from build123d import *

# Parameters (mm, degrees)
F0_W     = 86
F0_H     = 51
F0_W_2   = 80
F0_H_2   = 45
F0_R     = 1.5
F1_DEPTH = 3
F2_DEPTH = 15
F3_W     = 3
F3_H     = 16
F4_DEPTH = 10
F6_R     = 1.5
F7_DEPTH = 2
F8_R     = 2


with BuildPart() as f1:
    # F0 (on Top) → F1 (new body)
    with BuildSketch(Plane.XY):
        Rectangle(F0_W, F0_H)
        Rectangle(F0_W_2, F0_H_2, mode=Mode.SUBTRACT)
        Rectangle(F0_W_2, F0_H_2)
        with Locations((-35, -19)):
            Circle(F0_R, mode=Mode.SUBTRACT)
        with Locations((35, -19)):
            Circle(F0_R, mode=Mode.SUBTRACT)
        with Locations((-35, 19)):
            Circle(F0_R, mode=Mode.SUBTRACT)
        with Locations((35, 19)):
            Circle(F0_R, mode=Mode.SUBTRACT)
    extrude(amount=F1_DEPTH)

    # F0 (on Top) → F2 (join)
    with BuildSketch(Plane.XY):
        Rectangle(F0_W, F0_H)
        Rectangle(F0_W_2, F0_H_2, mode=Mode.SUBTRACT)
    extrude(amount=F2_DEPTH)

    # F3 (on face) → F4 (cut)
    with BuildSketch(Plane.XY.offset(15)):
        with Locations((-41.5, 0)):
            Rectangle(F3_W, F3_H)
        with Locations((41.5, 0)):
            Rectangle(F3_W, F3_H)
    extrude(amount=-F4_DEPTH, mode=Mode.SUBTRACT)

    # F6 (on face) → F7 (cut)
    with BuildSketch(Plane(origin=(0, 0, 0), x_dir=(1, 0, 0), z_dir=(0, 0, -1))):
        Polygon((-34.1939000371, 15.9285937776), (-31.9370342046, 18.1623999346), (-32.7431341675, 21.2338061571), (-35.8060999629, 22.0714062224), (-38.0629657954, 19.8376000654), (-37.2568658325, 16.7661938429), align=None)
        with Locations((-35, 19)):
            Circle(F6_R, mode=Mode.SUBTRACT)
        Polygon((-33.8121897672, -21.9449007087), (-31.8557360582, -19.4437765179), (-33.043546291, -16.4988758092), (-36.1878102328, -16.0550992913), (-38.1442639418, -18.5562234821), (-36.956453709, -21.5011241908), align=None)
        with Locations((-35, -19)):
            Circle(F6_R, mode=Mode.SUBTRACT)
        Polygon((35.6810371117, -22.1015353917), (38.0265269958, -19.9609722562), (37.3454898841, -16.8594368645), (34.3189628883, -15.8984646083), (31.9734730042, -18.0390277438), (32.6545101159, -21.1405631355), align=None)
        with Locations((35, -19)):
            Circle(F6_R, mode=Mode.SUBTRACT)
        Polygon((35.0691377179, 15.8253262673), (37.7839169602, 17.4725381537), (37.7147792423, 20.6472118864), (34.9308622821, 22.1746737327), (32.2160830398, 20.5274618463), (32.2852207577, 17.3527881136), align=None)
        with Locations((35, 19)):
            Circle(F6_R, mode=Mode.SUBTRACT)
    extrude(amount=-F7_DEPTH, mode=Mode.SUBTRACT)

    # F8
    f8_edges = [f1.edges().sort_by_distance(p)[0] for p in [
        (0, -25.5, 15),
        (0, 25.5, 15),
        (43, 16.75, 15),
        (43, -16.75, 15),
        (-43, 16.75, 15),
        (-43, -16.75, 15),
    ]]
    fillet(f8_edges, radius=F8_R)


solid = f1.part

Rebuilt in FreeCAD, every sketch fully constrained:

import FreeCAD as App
import Part
import Sketcher

V = App.Vector


def edges_at(feature, points):
    """Names of the edges that pass closest to the given points."""
    edges = feature.Shape.Edges
    near = lambda p: min(range(len(edges)), key=lambda i: edges[i].distToShape(Part.Vertex(*p))[0])
    return sorted({f"Edge{near(p) + 1}" for p in points})

doc = App.newDocument("Part")
body = doc.addObject("PartDesign::Body", "Body")

# Sketch on XY plane
sketch1 = body.newObject("Sketcher::SketchObject", "Sketch")
sketch1.AttachmentSupport = (doc.getObject("XY_Plane"), [""])
sketch1.MapMode = "FlatFace"
sketch1.addGeometry([
    Part.LineSegment(V(-43, 25.5, 0), V(-43, -25.5, 0)),  # 0
    Part.LineSegment(V(-43, -25.5, 0), V(43, -25.5, 0)),  # 1
    Part.LineSegment(V(43, -25.5, 0), V(43, 25.5, 0)),  # 2
    Part.LineSegment(V(43, 25.5, 0), V(-43, 25.5, 0)),  # 3
    Part.Circle(V(-35, -19, 0), V(0, 0, 1), 1.5),  # 4
    Part.Circle(V(35, -19, 0), V(0, 0, 1), 1.5),  # 5
    Part.Circle(V(-35, 19, 0), V(0, 0, 1), 1.5),  # 6
    Part.Circle(V(35, 19, 0), V(0, 0, 1), 1.5),  # 7
], False)
sketch1.addConstraint([
    Sketcher.Constraint("Coincident", 0, 2, 1, 1),
    Sketcher.Constraint("Coincident", 1, 2, 2, 1),
    Sketcher.Constraint("Coincident", 2, 2, 3, 1),
    Sketcher.Constraint("Coincident", 3, 2, 0, 1),
    Sketcher.Constraint("Vertical", 0),
    Sketcher.Constraint("Horizontal", 1),
    Sketcher.Constraint("Vertical", 2),
    Sketcher.Constraint("Horizontal", 3),
    Sketcher.Constraint("Equal", 4, 5),
    Sketcher.Constraint("Equal", 5, 6),
    Sketcher.Constraint("Equal", 6, 7),
    Sketcher.Constraint("Symmetric", 5, 3, 6, 3, -1, 1),
    Sketcher.Constraint("Symmetric", 4, 3, 7, 3, -1, 1),
    Sketcher.Constraint("Symmetric", 0, 2, 2, 2, -1, 1),
    Sketcher.Constraint("Symmetric", 4, 3, 5, 3, -2),
    Sketcher.Constraint("Diameter", 4, 3.0),
    Sketcher.Constraint("DistanceX", 1, 1, 1, 2, 86.0),
    Sketcher.Constraint("DistanceY", 0, 2, 0, 1, 51.0),
    Sketcher.Constraint("DistanceX", 4, 3, -1, 1, 35.0),
    Sketcher.Constraint("DistanceY", 4, 3, -1, 1, 19.0),
])
pad1 = body.newObject("PartDesign::Pad", "Pad")
pad1.Profile = sketch1
pad1.Length = 3

# Sketch on XY plane
sketch2 = body.newObject("Sketcher::SketchObject", "Sketch001")
sketch2.AttachmentSupport = (doc.getObject("XY_Plane"), [""])
sketch2.MapMode = "FlatFace"
sketch2.addGeometry([
    Part.LineSegment(V(-43, 26, 0), V(-43, -26, 0)),  # 0
    Part.LineSegment(V(-43, -26, 0), V(43, -26, 0)),  # 1
    Part.LineSegment(V(43, -26, 0), V(43, 26, 0)),  # 2
    Part.LineSegment(V(43, 26, 0), V(-43, 26, 0)),  # 3
    Part.LineSegment(V(40, -22, 0), V(-40, -22, 0)),  # 4
    Part.LineSegment(V(-40, -22, 0), V(-40, 22, 0)),  # 5
    Part.LineSegment(V(-40, 22, 0), V(40, 22, 0)),  # 6
    Part.LineSegment(V(40, 22, 0), V(40, -22, 0)),  # 7
], False)
sketch2.addConstraint([
    Sketcher.Constraint("Coincident", 0, 2, 1, 1),
    Sketcher.Constraint("Coincident", 1, 2, 2, 1),
    Sketcher.Constraint("Coincident", 2, 2, 3, 1),
    Sketcher.Constraint("Coincident", 3, 2, 0, 1),
    Sketcher.Constraint("Coincident", 4, 2, 5, 1),
    Sketcher.Constraint("Coincident", 5, 2, 6, 1),
    Sketcher.Constraint("Coincident", 6, 2, 7, 1),
    Sketcher.Constraint("Coincident", 7, 2, 4, 1),
    Sketcher.Constraint("Vertical", 0),
    Sketcher.Constraint("Horizontal", 1),
    Sketcher.Constraint("Vertical", 2),
    Sketcher.Constraint("Horizontal", 3),
    Sketcher.Constraint("Horizontal", 4),
    Sketcher.Constraint("Vertical", 5),
    Sketcher.Constraint("Horizontal", 6),
    Sketcher.Constraint("Vertical", 7),
    Sketcher.Constraint("Symmetric", 0, 2, 2, 2, -1, 1),
    Sketcher.Constraint("Symmetric", 4, 2, 6, 2, -1, 1),
    Sketcher.Constraint("DistanceX", 1, 1, 1, 2, 86.0),
    Sketcher.Constraint("DistanceX", 4, 2, 4, 1, 80.0),
    Sketcher.Constraint("DistanceY", 0, 2, 0, 1, 51.0),
    Sketcher.Constraint("DistanceY", 5, 1, 5, 2, 45.0),
])
pad2 = body.newObject("PartDesign::Pad", "Pad001")
pad2.Profile = sketch2
pad2.Length = 15

# Sketch on XY plane
sketch3 = body.newObject("Sketcher::SketchObject", "Sketch002")
sketch3.AttachmentSupport = (doc.getObject("XY_Plane"), [""])
sketch3.MapMode = "FlatFace"
sketch3.AttachmentOffset = App.Placement(V(0, 0, 15), App.Rotation())
sketch3.addGeometry([
    Part.LineSegment(V(-43, 8, 0), V(-43, -8, 0)),  # 0
    Part.LineSegment(V(-43, -8, 0), V(-40, -8, 0)),  # 1
    Part.LineSegment(V(-40, -8, 0), V(-40, 8, 0)),  # 2
    Part.LineSegment(V(-40, 8, 0), V(-43, 8, 0)),  # 3
    Part.LineSegment(V(40, 8, 0), V(40, -8, 0)),  # 4
    Part.LineSegment(V(40, -8, 0), V(43, -8, 0)),  # 5
    Part.LineSegment(V(43, -8, 0), V(43, 8, 0)),  # 6
    Part.LineSegment(V(43, 8, 0), V(40, 8, 0)),  # 7
], False)
sketch3.addConstraint([
    Sketcher.Constraint("Coincident", 0, 2, 1, 1),
    Sketcher.Constraint("Coincident", 1, 2, 2, 1),
    Sketcher.Constraint("Coincident", 2, 2, 3, 1),
    Sketcher.Constraint("Coincident", 3, 2, 0, 1),
    Sketcher.Constraint("Coincident", 4, 2, 5, 1),
    Sketcher.Constraint("Coincident", 5, 2, 6, 1),
    Sketcher.Constraint("Coincident", 6, 2, 7, 1),
    Sketcher.Constraint("Coincident", 7, 2, 4, 1),
    Sketcher.Constraint("Vertical", 0),
    Sketcher.Constraint("Horizontal", 1),
    Sketcher.Constraint("Vertical", 2),
    Sketcher.Constraint("Horizontal", 3),
    Sketcher.Constraint("Vertical", 4),
    Sketcher.Constraint("Horizontal", 5),
    Sketcher.Constraint("Vertical", 6),
    Sketcher.Constraint("Horizontal", 7),
    Sketcher.Constraint("Symmetric", 2, 2, 4, 2, -1, 1),
    Sketcher.Constraint("Symmetric", 0, 2, 6, 2, -1, 1),
    Sketcher.Constraint("Horizontal", 1, 2, 4, 2),
    Sketcher.Constraint("DistanceX", 1, 1, 1, 2, 3.0),
    Sketcher.Constraint("DistanceY", 0, 2, 0, 1, 16.0),
    Sketcher.Constraint("DistanceX", 0, 2, -1, 1, 43.0),
])
pocket1 = body.newObject("PartDesign::Pocket", "Pocket")
pocket1.Profile = sketch3
pocket1.Length = 10

# Sketch on XY plane
sketch4 = body.newObject("Sketcher::SketchObject", "Sketch003")
sketch4.AttachmentSupport = (doc.getObject("XY_Plane"), [""])
sketch4.MapMode = "FlatFace"
sketch4.addGeometry([
    Part.LineSegment(V(-34.2, -15.9, 0), V(-31.9, -18.2, 0)),  # 0
    Part.LineSegment(V(-31.9, -18.2, 0), V(-32.7, -21.2, 0)),  # 1
    Part.LineSegment(V(-32.7, -21.2, 0), V(-35.8, -22.1, 0)),  # 2
    Part.LineSegment(V(-35.8, -22.1, 0), V(-38.1, -19.8, 0)),  # 3
    Part.LineSegment(V(-38.1, -19.8, 0), V(-37.3, -16.8, 0)),  # 4
    Part.LineSegment(V(-37.3, -16.8, 0), V(-34.2, -15.9, 0)),  # 5
    Part.Circle(V(-35, -19, 0), V(0, 0, 1), 1.5),  # 6
    Part.LineSegment(V(-33.8, 21.9, 0), V(-31.9, 19.4, 0)),  # 7
    Part.LineSegment(V(-31.9, 19.4, 0), V(-33, 16.5, 0)),  # 8
    Part.LineSegment(V(-33, 16.5, 0), V(-36.2, 16.1, 0)),  # 9
    Part.LineSegment(V(-36.2, 16.1, 0), V(-38.1, 18.6, 0)),  # 10
    Part.LineSegment(V(-38.1, 18.6, 0), V(-37, 21.5, 0)),  # 11
    Part.LineSegment(V(-37, 21.5, 0), V(-33.8, 21.9, 0)),  # 12
    Part.Circle(V(-35, 19, 0), V(0, 0, 1), 1.5),  # 13
    Part.LineSegment(V(35.7, 22.1, 0), V(38, 20, 0)),  # 14
    Part.LineSegment(V(38, 20, 0), V(37.3, 16.9, 0)),  # 15
    Part.LineSegment(V(37.3, 16.9, 0), V(34.3, 15.9, 0)),  # 16
    Part.LineSegment(V(34.3, 15.9, 0), V(32, 18, 0)),  # 17
    Part.LineSegment(V(32, 18, 0), V(32.7, 21.1, 0)),  # 18
    Part.LineSegment(V(32.7, 21.1, 0), V(35.7, 22.1, 0)),  # 19
    Part.Circle(V(35, 19, 0), V(0, 0, 1), 1.5),  # 20
    Part.LineSegment(V(35.1, -15.8, 0), V(37.8, -17.5, 0)),  # 21
    Part.LineSegment(V(37.8, -17.5, 0), V(37.7, -20.6, 0)),  # 22
    Part.LineSegment(V(37.7, -20.6, 0), V(34.9, -22.2, 0)),  # 23
    Part.LineSegment(V(34.9, -22.2, 0), V(32.2, -20.5, 0)),  # 24
    Part.LineSegment(V(32.2, -20.5, 0), V(32.3, -17.4, 0)),  # 25
    Part.LineSegment(V(32.3, -17.4, 0), V(35.1, -15.8, 0)),  # 26
    Part.Circle(V(35, -19, 0), V(0, 0, 1), 1.5),  # 27
], False)
sketch4.addConstraint([
    Sketcher.Constraint("Coincident", 0, 2, 1, 1),
    Sketcher.Constraint("Coincident", 1, 2, 2, 1),
    Sketcher.Constraint("Coincident", 2, 2, 3, 1),
    Sketcher.Constraint("Coincident", 3, 2, 4, 1),
    Sketcher.Constraint("Coincident", 4, 2, 5, 1),
    Sketcher.Constraint("Coincident", 5, 2, 0, 1),
    Sketcher.Constraint("Coincident", 7, 2, 8, 1),
    Sketcher.Constraint("Coincident", 8, 2, 9, 1),
    Sketcher.Constraint("Coincident", 9, 2, 10, 1),
    Sketcher.Constraint("Coincident", 10, 2, 11, 1),
    Sketcher.Constraint("Coincident", 11, 2, 12, 1),
    Sketcher.Constraint("Coincident", 12, 2, 7, 1),
    Sketcher.Constraint("Coincident", 14, 2, 15, 1),
    Sketcher.Constraint("Coincident", 15, 2, 16, 1),
    Sketcher.Constraint("Coincident", 16, 2, 17, 1),
    Sketcher.Constraint("Coincident", 17, 2, 18, 1),
    Sketcher.Constraint("Coincident", 18, 2, 19, 1),
    Sketcher.Constraint("Coincident", 19, 2, 14, 1),
    Sketcher.Constraint("Coincident", 21, 2, 22, 1),
    Sketcher.Constraint("Coincident", 22, 2, 23, 1),
    Sketcher.Constraint("Coincident", 23, 2, 24, 1),
    Sketcher.Constraint("Coincident", 24, 2, 25, 1),
    Sketcher.Constraint("Coincident", 25, 2, 26, 1),
    Sketcher.Constraint("Coincident", 26, 2, 21, 1),
    Sketcher.Constraint("Equal", 6, 13),
    Sketcher.Constraint("Equal", 13, 20),
    Sketcher.Constraint("Equal", 20, 27),
    Sketcher.Constraint("Symmetric", 6, 3, 20, 3, -1, 1),
    Sketcher.Constraint("Symmetric", 13, 3, 27, 3, -1, 1),
    Sketcher.Constraint("Symmetric", 13, 3, 20, 3, -2),
    Sketcher.Constraint("Parallel", 0, 3),
    Sketcher.Constraint("Parallel", 1, 4),
    Sketcher.Constraint("Parallel", 2, 5),
    Sketcher.Constraint("Parallel", 7, 10),
    Sketcher.Constraint("Parallel", 8, 11),
    Sketcher.Constraint("Parallel", 9, 12),
    Sketcher.Constraint("Parallel", 14, 17),
    Sketcher.Constraint("Parallel", 15, 18),
    Sketcher.Constraint("Parallel", 16, 19),
    Sketcher.Constraint("Parallel", 21, 24),
    Sketcher.Constraint("Parallel", 22, 25),
    Sketcher.Constraint("Parallel", 23, 26),
    Sketcher.Constraint("Equal", 0, 1),
    Sketcher.Constraint("Equal", 1, 2),
    Sketcher.Constraint("Equal", 2, 3),
    Sketcher.Constraint("Equal", 5, 7),
    Sketcher.Constraint("Equal", 7, 8),
    Sketcher.Constraint("Equal", 8, 9),
    Sketcher.Constraint("Equal", 9, 10),
    Sketcher.Constraint("Equal", 12, 14),
    Sketcher.Constraint("Equal", 14, 15),
    Sketcher.Constraint("Equal", 15, 16),
    Sketcher.Constraint("Equal", 16, 17),
    Sketcher.Constraint("Equal", 19, 21),
    Sketcher.Constraint("Equal", 21, 22),
    Sketcher.Constraint("Equal", 22, 23),
    Sketcher.Constraint("Equal", 23, 24),
    Sketcher.Constraint("Diameter", 6, 3.0),
    Sketcher.Constraint("DistanceX", 6, 3, -1, 1, 35.0),
    Sketcher.Constraint("DistanceY", 6, 3, -1, 1, 19.0),
    Sketcher.Constraint("DistanceY", 0, 2, -1, 1, 18.1624),
    Sketcher.Constraint("DistanceX", 2, 2, -1, 1, 35.8061),
    Sketcher.Constraint("DistanceY", 3, 2, -1, 1, 19.8376),
    Sketcher.Constraint("DistanceX", 5, 2, -1, 1, 34.1939),
    Sketcher.Constraint("DistanceY", -1, 1, 9, 2, 16.055099),
    Sketcher.Constraint("DistanceY", -1, 1, 12, 2, 21.944901),
    Sketcher.Constraint("DistanceX", 1, 2, 0, 2, 0.8061),
    Sketcher.Constraint("DistanceY", 2, 2, 1, 2, 0.8376),
    Sketcher.Constraint("DistanceX", 0, 2, 7, 2, 0.081298),
    Sketcher.Constraint("DistanceY", 8, 2, 7, 2, 2.944901),
    Sketcher.Constraint("DistanceX", 7, 2, 16, 2, 66.174699),
    Sketcher.Constraint("DistanceY", 16, 2, 18, 2, 5.242099),
    Sketcher.Constraint("DistanceX", 16, 2, 23, 2, 0.611899),
    Sketcher.Constraint("DistanceX", 9, 2, -1, 1, 36.18781),
    Sketcher.Constraint("DistanceX", -1, 1, 15, 2, 37.34549),
    Sketcher.Constraint("DistanceX", -1, 1, 18, 2, 32.65451),
    Sketcher.Constraint("DistanceY", 21, 2, -1, 1, 17.472538),
    Sketcher.Constraint("DistanceX", -1, 1, 22, 2, 37.714779),
    Sketcher.Constraint("DistanceY", 22, 2, -1, 1, 20.647212),
    Sketcher.Constraint("DistanceY", 24, 2, -1, 1, 20.527462),
    Sketcher.Constraint("DistanceY", 14, 2, 12, 2, 1.983928),
])
pocket2 = body.newObject("PartDesign::Pocket", "Pocket001")
pocket2.Profile = sketch4
pocket2.Length = 2
pocket2.Reversed = True
doc.recompute()

fillet = body.newObject("PartDesign::Fillet", "Fillet")
fillet.Base = (pocket2, edges_at(pocket2, [
    (0, -25.5, 15),
    (0, 25.5, 15),
    (43, 16.75, 15),
    (43, -16.75, 15),
    (-43, 16.75, 15),
    (-43, -16.75, 15),
]))
fillet.Radius = 2

doc.recompute()
